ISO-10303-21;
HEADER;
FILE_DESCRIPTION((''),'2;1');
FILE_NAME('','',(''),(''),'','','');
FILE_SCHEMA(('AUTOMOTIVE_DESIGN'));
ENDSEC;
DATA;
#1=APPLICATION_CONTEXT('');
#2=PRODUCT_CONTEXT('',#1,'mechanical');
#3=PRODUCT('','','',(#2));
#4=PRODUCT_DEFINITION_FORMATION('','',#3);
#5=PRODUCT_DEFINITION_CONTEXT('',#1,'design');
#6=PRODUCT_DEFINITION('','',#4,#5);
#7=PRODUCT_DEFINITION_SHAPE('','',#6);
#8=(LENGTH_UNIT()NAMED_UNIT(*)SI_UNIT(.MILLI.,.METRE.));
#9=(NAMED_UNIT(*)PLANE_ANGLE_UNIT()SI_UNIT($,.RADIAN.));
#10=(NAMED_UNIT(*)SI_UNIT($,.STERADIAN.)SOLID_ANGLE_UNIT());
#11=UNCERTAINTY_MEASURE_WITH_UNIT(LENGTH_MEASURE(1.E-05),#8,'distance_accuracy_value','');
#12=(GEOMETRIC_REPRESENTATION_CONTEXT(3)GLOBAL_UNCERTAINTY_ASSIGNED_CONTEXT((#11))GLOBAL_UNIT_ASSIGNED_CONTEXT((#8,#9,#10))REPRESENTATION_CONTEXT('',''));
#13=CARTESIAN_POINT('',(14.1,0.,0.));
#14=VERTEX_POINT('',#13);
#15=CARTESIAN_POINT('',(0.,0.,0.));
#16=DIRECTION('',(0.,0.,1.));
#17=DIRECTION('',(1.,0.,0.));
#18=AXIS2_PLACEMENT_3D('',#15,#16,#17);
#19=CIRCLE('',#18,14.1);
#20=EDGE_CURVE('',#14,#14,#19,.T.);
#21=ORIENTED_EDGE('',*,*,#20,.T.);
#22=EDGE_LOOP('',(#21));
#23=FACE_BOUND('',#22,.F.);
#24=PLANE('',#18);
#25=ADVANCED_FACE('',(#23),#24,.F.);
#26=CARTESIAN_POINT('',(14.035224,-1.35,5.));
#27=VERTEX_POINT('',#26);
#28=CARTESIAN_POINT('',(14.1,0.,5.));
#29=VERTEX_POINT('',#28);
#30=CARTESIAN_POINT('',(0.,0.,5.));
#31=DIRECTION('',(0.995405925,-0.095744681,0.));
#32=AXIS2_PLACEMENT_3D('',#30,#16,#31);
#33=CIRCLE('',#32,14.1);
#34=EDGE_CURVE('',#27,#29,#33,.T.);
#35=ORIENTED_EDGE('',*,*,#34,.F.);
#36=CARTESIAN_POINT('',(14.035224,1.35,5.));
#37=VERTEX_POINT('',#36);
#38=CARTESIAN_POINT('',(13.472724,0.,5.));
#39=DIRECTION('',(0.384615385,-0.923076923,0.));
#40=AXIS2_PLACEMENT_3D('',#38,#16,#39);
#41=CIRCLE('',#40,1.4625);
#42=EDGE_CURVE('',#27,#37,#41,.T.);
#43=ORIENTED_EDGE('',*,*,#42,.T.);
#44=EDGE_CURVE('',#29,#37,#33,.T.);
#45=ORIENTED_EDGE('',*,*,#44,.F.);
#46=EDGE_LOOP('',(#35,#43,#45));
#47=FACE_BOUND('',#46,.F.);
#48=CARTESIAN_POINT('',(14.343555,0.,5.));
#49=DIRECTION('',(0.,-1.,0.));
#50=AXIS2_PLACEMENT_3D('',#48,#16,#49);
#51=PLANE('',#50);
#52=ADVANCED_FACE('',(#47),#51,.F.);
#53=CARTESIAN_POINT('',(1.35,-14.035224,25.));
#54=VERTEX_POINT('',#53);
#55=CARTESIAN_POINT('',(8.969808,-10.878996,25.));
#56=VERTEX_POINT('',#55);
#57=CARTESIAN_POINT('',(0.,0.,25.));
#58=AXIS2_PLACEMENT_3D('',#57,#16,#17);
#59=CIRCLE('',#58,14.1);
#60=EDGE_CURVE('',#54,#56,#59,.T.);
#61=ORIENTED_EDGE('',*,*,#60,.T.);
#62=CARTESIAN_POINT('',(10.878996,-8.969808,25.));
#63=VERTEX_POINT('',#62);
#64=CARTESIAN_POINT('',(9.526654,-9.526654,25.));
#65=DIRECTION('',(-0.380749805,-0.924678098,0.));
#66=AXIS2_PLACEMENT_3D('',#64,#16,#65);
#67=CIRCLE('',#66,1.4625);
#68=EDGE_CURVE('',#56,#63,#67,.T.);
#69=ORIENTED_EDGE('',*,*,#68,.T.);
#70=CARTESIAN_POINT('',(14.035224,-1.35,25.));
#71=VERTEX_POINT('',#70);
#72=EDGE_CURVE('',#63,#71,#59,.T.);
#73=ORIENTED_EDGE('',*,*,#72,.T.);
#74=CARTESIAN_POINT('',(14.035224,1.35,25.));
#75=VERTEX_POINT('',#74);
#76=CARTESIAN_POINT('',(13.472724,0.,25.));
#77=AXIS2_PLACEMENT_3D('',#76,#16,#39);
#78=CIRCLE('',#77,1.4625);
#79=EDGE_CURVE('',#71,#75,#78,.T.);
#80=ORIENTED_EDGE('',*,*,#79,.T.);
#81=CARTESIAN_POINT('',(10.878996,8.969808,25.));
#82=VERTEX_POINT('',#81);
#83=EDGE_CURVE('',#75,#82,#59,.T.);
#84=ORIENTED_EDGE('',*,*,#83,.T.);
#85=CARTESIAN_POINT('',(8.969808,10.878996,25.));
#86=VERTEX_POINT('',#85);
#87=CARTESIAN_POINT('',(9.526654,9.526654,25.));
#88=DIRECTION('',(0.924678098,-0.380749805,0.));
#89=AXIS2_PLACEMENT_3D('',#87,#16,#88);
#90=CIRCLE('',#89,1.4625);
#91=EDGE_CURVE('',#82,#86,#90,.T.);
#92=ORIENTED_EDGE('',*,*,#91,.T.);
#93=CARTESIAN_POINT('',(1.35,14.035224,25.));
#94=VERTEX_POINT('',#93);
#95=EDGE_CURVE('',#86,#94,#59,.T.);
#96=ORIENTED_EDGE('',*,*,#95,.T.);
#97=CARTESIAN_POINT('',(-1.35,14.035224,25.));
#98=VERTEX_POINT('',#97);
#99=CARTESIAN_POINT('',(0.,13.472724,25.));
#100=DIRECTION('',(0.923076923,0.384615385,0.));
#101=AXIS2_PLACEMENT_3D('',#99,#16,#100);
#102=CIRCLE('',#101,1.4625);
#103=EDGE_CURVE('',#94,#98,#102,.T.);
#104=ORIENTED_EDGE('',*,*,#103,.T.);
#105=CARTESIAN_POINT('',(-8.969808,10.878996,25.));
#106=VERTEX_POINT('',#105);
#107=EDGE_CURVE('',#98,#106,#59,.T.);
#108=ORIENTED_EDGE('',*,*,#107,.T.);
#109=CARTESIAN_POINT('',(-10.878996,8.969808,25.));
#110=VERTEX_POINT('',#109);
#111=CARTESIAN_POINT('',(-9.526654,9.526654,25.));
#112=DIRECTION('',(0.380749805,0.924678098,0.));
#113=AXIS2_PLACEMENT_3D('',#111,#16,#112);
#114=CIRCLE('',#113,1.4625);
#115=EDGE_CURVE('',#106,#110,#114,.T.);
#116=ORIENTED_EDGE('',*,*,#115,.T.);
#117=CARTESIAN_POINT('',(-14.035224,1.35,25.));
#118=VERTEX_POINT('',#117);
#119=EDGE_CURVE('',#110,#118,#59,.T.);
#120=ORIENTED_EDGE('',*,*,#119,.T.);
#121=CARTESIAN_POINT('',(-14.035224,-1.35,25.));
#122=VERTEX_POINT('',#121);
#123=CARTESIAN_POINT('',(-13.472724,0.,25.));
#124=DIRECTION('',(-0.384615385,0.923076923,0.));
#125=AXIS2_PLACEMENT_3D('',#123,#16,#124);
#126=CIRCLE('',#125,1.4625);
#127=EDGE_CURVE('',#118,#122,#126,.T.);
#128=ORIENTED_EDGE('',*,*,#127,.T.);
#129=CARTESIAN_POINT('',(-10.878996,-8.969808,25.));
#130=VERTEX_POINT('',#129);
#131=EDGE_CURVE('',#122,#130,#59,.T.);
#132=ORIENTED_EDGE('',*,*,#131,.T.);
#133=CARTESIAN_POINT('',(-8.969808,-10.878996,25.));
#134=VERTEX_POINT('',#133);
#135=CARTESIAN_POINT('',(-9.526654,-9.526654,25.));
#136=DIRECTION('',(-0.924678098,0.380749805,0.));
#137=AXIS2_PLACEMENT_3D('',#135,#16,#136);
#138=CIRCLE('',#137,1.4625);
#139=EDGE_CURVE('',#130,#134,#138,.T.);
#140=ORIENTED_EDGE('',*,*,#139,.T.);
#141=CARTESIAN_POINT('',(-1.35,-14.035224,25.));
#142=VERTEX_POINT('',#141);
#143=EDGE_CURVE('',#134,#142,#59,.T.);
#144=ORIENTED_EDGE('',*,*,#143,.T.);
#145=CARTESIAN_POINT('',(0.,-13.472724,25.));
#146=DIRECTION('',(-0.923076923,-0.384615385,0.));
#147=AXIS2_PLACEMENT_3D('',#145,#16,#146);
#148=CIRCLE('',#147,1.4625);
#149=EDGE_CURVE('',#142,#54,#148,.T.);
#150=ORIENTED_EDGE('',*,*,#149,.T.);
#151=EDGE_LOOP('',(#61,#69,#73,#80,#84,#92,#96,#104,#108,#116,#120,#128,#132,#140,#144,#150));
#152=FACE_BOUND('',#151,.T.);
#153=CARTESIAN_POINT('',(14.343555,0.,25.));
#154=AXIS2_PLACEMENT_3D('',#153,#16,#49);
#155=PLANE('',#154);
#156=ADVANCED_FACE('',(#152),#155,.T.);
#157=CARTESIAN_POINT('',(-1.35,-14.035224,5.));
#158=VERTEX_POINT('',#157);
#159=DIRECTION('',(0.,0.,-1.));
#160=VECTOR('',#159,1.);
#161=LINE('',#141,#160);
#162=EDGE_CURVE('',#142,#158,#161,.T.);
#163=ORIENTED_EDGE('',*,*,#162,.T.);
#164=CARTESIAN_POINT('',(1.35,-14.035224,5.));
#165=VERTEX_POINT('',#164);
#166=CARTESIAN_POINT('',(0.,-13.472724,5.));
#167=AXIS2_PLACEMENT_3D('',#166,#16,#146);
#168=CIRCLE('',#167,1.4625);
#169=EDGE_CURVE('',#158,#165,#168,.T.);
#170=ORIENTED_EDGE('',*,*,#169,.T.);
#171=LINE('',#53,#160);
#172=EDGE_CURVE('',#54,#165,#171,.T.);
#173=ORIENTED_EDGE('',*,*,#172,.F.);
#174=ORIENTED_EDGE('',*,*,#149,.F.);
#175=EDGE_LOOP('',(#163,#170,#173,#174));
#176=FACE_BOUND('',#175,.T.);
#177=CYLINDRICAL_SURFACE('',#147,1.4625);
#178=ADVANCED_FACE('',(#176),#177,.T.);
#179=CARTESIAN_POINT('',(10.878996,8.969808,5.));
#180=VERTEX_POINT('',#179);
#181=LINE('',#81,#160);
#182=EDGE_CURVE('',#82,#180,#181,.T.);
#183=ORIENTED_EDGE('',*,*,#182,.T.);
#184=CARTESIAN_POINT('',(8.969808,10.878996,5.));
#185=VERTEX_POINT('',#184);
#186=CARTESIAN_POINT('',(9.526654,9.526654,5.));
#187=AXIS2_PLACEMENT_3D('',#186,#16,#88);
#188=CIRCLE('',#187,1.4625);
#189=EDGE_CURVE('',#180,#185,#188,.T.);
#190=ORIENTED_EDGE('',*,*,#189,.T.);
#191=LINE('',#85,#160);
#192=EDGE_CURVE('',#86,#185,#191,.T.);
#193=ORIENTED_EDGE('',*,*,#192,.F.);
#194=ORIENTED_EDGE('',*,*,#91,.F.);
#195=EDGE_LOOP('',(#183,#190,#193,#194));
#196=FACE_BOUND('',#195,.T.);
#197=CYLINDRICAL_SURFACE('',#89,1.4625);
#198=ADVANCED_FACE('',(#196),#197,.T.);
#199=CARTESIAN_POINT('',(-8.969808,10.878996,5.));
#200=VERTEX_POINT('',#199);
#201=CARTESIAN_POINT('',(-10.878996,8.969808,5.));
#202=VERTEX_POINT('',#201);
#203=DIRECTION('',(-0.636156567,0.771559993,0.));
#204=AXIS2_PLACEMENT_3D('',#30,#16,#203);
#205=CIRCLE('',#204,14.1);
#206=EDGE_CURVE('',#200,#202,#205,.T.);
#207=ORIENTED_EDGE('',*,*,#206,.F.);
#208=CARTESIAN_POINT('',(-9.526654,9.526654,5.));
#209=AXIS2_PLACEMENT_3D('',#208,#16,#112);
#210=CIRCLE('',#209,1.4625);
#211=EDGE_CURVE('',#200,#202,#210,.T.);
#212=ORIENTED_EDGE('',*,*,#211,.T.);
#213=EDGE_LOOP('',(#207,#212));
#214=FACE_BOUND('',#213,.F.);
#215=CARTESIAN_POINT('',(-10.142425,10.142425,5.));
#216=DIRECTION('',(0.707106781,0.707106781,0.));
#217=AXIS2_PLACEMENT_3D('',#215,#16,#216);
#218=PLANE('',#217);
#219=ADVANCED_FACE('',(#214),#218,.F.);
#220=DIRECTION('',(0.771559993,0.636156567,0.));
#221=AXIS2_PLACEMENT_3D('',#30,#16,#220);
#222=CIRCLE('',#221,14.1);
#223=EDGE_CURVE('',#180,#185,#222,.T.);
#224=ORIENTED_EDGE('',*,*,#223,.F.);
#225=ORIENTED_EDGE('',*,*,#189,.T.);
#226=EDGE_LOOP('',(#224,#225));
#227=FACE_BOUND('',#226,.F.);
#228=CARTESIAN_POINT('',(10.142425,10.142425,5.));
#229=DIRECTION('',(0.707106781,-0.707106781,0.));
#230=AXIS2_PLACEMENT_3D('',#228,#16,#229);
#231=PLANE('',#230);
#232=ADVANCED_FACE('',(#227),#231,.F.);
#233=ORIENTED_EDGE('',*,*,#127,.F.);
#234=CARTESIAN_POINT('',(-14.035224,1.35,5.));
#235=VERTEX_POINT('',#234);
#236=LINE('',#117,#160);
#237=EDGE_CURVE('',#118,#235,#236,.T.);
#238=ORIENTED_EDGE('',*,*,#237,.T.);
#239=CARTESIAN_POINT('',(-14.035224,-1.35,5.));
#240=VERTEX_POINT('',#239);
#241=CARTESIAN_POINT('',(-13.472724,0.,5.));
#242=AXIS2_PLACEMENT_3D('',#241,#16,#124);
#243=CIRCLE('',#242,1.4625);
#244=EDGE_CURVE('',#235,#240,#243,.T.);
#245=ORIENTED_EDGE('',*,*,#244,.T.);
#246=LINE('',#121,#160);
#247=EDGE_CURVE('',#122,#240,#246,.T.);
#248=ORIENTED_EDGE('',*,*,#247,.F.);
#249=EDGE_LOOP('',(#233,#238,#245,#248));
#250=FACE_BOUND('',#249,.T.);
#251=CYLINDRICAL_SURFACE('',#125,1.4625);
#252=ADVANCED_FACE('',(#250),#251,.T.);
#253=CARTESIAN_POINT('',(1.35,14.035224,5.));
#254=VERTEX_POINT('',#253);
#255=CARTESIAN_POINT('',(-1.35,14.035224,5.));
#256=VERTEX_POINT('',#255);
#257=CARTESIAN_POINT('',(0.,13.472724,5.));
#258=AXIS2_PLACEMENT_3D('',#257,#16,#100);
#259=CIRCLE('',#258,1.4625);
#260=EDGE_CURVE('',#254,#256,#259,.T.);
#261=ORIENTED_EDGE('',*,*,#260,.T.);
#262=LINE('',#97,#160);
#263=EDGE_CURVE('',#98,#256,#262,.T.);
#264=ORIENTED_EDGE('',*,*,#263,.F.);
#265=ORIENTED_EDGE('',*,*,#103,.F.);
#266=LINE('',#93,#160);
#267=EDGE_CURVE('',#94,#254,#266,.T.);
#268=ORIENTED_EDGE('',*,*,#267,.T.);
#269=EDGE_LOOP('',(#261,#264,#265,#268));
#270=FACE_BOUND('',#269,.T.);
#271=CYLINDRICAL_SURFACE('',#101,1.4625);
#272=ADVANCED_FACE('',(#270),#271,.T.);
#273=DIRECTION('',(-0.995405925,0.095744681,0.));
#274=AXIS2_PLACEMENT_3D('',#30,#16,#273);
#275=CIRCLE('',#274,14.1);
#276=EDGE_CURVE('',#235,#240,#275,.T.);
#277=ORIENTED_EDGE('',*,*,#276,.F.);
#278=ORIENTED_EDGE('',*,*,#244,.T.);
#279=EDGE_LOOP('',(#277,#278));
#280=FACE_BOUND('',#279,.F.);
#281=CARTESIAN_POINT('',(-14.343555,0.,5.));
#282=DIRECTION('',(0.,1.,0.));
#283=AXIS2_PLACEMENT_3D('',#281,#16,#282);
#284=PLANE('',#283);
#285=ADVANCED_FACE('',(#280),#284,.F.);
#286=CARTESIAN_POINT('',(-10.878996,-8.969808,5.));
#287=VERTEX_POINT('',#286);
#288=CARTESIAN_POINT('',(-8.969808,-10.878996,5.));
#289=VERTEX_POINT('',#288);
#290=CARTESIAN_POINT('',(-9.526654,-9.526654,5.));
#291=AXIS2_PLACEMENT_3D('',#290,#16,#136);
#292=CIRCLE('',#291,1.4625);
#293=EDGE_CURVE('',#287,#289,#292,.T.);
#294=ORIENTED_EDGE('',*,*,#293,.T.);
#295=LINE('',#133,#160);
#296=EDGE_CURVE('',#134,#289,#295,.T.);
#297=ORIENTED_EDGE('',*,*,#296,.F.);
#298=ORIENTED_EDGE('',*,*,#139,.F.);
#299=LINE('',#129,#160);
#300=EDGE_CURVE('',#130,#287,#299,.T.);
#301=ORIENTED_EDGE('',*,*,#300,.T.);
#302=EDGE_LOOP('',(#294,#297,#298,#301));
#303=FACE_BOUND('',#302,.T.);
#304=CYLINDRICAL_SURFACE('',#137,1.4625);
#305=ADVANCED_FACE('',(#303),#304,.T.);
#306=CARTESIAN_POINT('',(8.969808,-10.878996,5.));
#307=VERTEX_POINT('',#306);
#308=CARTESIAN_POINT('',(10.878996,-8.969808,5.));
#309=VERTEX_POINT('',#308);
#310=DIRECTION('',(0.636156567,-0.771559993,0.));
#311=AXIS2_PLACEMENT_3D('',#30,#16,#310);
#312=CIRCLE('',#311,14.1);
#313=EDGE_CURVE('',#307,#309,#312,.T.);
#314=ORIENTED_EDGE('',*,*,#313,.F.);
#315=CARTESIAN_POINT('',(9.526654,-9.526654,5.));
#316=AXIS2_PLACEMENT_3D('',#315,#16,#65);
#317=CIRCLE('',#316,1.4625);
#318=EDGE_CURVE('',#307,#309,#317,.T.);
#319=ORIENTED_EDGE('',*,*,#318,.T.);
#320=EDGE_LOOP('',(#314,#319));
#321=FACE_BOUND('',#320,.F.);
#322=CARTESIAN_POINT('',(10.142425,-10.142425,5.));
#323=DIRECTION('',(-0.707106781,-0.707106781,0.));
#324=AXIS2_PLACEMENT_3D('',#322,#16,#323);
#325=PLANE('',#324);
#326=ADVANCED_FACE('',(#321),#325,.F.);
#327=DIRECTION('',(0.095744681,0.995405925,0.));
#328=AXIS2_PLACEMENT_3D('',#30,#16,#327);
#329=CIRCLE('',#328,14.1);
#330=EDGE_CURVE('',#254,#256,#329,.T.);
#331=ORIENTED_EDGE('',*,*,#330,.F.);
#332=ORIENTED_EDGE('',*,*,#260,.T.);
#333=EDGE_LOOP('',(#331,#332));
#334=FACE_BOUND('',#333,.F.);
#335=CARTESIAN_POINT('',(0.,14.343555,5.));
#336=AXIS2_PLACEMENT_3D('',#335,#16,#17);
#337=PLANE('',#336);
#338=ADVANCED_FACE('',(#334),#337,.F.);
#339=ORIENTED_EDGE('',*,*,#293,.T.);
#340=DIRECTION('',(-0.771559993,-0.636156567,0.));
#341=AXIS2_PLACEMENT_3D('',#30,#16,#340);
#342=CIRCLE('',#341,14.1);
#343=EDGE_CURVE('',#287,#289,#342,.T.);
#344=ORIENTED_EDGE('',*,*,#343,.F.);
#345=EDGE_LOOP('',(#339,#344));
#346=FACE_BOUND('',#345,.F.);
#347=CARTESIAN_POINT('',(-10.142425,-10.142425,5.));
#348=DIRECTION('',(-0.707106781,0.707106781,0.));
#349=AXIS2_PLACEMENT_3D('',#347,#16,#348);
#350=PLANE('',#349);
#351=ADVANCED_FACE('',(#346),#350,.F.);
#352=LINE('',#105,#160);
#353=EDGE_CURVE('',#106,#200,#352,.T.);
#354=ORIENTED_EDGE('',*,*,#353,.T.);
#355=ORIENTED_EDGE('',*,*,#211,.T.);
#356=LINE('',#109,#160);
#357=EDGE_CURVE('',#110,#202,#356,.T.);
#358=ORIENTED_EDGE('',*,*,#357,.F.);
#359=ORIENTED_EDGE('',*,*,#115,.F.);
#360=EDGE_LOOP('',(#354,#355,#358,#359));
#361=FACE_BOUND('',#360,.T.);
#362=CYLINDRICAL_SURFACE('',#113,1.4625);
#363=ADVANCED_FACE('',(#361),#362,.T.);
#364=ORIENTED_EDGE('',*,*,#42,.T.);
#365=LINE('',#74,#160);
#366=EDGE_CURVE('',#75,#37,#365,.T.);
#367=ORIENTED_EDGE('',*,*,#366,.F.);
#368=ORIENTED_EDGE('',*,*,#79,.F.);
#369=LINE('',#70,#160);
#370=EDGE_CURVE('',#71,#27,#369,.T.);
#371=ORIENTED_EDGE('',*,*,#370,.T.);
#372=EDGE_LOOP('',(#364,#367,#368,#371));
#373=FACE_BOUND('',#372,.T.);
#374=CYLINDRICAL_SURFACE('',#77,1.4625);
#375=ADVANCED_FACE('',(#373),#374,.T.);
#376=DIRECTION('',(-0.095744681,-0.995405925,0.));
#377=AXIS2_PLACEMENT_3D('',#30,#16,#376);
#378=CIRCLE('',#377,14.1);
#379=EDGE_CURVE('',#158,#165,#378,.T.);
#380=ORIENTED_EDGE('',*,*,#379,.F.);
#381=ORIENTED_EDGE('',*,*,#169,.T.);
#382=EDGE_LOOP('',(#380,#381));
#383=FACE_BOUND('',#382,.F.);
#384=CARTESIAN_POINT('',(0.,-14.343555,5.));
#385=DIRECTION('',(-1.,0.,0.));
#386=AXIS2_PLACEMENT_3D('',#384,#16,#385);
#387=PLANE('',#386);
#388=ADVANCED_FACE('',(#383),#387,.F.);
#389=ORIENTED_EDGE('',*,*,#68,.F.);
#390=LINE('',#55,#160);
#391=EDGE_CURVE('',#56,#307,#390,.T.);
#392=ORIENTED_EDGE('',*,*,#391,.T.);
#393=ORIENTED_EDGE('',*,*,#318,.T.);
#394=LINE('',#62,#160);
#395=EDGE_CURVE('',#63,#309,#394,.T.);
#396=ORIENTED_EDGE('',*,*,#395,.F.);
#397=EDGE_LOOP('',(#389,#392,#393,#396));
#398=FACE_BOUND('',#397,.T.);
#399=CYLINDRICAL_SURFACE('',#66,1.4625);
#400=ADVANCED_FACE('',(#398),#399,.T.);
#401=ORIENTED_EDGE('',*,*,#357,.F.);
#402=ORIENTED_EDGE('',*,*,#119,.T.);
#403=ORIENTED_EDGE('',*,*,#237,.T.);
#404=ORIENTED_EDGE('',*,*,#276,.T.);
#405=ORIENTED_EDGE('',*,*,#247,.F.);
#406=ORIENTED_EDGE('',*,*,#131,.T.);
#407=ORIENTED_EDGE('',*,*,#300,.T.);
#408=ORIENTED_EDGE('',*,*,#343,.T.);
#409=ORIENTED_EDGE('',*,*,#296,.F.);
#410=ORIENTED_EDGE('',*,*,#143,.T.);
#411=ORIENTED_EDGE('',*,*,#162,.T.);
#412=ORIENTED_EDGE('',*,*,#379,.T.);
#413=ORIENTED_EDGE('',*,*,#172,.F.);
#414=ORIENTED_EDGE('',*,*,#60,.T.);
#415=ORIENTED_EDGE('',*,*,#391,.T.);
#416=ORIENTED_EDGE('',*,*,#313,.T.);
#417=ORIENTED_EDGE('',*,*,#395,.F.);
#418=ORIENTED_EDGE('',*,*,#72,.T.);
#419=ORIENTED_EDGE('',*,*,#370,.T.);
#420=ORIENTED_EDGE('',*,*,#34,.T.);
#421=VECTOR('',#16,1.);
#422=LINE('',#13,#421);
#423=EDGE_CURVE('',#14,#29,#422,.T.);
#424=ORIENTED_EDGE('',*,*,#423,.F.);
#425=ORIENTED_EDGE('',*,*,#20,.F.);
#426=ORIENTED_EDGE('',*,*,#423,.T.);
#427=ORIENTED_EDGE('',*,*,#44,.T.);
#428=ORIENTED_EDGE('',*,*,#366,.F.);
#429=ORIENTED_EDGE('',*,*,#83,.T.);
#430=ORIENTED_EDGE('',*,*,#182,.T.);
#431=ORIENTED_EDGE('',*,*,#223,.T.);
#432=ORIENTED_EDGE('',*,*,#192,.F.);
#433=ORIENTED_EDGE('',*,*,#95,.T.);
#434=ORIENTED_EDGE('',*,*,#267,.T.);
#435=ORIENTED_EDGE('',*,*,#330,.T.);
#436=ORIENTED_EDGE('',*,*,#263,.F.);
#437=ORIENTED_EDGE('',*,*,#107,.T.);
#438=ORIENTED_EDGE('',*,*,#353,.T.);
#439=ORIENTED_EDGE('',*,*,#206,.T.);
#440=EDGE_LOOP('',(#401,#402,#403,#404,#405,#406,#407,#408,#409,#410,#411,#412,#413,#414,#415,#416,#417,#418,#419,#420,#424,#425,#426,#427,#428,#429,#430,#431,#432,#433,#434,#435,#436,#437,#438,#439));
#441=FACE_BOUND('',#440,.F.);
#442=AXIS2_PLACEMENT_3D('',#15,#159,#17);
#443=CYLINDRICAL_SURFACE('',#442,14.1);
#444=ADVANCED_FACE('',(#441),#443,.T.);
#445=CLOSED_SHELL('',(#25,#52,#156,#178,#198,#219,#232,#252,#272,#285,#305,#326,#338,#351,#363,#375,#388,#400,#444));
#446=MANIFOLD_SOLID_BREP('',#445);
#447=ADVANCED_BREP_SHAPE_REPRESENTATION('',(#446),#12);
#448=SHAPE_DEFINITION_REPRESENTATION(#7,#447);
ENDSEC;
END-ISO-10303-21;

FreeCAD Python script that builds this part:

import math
import FreeCAD as App
import Part
import Sketcher

doc = App.newDocument("Part")
body = doc.addObject("PartDesign::Body", "Body")

sketch1 = doc.addObject("Sketcher::SketchObject", "Sketch")
body.addObject(sketch1)
sketch1.AttachmentSupport = (doc.XY_Plane, [""])
sketch1.MapMode = "FlatFace"
sketch1.addGeometry(Part.Circle(App.Vector(0, 0, 0), App.Vector(0, 0, 1), 14), False)
sketch1.addConstraint([
    Sketcher.Constraint("Coincident", 0, 3, -1, 1),
    Sketcher.Constraint("Diameter", 0, 28.2),
])
pad1 = doc.addObject("PartDesign::Pad", "Pad")
body.addObject(pad1)
pad1.Profile = sketch1
pad1.Length = 25

sketch2 = doc.addObject("Sketcher::SketchObject", "Sketch001")
body.addObject(sketch2)
sketch2.AttachmentSupport = (doc.XY_Plane, [""])
sketch2.MapMode = "FlatFace"
sketch2.AttachmentOffset = App.Placement(App.Vector(0, 0, 25), App.Rotation())
sketch2.addGeometry([
    Part.ArcOfCircle(Part.Circle(App.Vector(0, 13.5, 0), App.Vector(0, 0, 1), 1.5), math.radians(23), math.radians(157)),
    Part.ArcOfCircle(Part.Circle(App.Vector(0, 0, 0), App.Vector(0, 0, 1), 14.1), math.radians(84.51), math.radians(95.49)),
], False)
sketch2.addConstraint([
    Sketcher.Constraint("Coincident", 0, 1, 1, 1),
    Sketcher.Constraint("Coincident", 1, 2, 0, 2),
    Sketcher.Constraint("Coincident", 1, 3, -1, 1),
    Sketcher.Constraint("PointOnObject", 0, 3, -2),
    Sketcher.Constraint("Radius", 1, 14.1),
    Sketcher.Constraint("Radius", 0, 1.4625),
    Sketcher.Constraint("DistanceX", 1, 2, 0, 1, 2.7),
])
pad2 = doc.addObject("PartDesign::Pad", "Pad001")
body.addObject(pad2)
pad2.Profile = sketch2
pad2.Length = 20
pad2.Reversed = True
doc.recompute()

polarpattern = doc.addObject("PartDesign::PolarPattern", "PolarPattern")
body.addObject(polarpattern)
polarpattern.Originals = [pad2]
polarpattern.Axis = (doc.Z_Axis, [""])
polarpattern.Angle = 360
polarpattern.Occurrences = 8
body.Tip = polarpattern

doc.recompute()
